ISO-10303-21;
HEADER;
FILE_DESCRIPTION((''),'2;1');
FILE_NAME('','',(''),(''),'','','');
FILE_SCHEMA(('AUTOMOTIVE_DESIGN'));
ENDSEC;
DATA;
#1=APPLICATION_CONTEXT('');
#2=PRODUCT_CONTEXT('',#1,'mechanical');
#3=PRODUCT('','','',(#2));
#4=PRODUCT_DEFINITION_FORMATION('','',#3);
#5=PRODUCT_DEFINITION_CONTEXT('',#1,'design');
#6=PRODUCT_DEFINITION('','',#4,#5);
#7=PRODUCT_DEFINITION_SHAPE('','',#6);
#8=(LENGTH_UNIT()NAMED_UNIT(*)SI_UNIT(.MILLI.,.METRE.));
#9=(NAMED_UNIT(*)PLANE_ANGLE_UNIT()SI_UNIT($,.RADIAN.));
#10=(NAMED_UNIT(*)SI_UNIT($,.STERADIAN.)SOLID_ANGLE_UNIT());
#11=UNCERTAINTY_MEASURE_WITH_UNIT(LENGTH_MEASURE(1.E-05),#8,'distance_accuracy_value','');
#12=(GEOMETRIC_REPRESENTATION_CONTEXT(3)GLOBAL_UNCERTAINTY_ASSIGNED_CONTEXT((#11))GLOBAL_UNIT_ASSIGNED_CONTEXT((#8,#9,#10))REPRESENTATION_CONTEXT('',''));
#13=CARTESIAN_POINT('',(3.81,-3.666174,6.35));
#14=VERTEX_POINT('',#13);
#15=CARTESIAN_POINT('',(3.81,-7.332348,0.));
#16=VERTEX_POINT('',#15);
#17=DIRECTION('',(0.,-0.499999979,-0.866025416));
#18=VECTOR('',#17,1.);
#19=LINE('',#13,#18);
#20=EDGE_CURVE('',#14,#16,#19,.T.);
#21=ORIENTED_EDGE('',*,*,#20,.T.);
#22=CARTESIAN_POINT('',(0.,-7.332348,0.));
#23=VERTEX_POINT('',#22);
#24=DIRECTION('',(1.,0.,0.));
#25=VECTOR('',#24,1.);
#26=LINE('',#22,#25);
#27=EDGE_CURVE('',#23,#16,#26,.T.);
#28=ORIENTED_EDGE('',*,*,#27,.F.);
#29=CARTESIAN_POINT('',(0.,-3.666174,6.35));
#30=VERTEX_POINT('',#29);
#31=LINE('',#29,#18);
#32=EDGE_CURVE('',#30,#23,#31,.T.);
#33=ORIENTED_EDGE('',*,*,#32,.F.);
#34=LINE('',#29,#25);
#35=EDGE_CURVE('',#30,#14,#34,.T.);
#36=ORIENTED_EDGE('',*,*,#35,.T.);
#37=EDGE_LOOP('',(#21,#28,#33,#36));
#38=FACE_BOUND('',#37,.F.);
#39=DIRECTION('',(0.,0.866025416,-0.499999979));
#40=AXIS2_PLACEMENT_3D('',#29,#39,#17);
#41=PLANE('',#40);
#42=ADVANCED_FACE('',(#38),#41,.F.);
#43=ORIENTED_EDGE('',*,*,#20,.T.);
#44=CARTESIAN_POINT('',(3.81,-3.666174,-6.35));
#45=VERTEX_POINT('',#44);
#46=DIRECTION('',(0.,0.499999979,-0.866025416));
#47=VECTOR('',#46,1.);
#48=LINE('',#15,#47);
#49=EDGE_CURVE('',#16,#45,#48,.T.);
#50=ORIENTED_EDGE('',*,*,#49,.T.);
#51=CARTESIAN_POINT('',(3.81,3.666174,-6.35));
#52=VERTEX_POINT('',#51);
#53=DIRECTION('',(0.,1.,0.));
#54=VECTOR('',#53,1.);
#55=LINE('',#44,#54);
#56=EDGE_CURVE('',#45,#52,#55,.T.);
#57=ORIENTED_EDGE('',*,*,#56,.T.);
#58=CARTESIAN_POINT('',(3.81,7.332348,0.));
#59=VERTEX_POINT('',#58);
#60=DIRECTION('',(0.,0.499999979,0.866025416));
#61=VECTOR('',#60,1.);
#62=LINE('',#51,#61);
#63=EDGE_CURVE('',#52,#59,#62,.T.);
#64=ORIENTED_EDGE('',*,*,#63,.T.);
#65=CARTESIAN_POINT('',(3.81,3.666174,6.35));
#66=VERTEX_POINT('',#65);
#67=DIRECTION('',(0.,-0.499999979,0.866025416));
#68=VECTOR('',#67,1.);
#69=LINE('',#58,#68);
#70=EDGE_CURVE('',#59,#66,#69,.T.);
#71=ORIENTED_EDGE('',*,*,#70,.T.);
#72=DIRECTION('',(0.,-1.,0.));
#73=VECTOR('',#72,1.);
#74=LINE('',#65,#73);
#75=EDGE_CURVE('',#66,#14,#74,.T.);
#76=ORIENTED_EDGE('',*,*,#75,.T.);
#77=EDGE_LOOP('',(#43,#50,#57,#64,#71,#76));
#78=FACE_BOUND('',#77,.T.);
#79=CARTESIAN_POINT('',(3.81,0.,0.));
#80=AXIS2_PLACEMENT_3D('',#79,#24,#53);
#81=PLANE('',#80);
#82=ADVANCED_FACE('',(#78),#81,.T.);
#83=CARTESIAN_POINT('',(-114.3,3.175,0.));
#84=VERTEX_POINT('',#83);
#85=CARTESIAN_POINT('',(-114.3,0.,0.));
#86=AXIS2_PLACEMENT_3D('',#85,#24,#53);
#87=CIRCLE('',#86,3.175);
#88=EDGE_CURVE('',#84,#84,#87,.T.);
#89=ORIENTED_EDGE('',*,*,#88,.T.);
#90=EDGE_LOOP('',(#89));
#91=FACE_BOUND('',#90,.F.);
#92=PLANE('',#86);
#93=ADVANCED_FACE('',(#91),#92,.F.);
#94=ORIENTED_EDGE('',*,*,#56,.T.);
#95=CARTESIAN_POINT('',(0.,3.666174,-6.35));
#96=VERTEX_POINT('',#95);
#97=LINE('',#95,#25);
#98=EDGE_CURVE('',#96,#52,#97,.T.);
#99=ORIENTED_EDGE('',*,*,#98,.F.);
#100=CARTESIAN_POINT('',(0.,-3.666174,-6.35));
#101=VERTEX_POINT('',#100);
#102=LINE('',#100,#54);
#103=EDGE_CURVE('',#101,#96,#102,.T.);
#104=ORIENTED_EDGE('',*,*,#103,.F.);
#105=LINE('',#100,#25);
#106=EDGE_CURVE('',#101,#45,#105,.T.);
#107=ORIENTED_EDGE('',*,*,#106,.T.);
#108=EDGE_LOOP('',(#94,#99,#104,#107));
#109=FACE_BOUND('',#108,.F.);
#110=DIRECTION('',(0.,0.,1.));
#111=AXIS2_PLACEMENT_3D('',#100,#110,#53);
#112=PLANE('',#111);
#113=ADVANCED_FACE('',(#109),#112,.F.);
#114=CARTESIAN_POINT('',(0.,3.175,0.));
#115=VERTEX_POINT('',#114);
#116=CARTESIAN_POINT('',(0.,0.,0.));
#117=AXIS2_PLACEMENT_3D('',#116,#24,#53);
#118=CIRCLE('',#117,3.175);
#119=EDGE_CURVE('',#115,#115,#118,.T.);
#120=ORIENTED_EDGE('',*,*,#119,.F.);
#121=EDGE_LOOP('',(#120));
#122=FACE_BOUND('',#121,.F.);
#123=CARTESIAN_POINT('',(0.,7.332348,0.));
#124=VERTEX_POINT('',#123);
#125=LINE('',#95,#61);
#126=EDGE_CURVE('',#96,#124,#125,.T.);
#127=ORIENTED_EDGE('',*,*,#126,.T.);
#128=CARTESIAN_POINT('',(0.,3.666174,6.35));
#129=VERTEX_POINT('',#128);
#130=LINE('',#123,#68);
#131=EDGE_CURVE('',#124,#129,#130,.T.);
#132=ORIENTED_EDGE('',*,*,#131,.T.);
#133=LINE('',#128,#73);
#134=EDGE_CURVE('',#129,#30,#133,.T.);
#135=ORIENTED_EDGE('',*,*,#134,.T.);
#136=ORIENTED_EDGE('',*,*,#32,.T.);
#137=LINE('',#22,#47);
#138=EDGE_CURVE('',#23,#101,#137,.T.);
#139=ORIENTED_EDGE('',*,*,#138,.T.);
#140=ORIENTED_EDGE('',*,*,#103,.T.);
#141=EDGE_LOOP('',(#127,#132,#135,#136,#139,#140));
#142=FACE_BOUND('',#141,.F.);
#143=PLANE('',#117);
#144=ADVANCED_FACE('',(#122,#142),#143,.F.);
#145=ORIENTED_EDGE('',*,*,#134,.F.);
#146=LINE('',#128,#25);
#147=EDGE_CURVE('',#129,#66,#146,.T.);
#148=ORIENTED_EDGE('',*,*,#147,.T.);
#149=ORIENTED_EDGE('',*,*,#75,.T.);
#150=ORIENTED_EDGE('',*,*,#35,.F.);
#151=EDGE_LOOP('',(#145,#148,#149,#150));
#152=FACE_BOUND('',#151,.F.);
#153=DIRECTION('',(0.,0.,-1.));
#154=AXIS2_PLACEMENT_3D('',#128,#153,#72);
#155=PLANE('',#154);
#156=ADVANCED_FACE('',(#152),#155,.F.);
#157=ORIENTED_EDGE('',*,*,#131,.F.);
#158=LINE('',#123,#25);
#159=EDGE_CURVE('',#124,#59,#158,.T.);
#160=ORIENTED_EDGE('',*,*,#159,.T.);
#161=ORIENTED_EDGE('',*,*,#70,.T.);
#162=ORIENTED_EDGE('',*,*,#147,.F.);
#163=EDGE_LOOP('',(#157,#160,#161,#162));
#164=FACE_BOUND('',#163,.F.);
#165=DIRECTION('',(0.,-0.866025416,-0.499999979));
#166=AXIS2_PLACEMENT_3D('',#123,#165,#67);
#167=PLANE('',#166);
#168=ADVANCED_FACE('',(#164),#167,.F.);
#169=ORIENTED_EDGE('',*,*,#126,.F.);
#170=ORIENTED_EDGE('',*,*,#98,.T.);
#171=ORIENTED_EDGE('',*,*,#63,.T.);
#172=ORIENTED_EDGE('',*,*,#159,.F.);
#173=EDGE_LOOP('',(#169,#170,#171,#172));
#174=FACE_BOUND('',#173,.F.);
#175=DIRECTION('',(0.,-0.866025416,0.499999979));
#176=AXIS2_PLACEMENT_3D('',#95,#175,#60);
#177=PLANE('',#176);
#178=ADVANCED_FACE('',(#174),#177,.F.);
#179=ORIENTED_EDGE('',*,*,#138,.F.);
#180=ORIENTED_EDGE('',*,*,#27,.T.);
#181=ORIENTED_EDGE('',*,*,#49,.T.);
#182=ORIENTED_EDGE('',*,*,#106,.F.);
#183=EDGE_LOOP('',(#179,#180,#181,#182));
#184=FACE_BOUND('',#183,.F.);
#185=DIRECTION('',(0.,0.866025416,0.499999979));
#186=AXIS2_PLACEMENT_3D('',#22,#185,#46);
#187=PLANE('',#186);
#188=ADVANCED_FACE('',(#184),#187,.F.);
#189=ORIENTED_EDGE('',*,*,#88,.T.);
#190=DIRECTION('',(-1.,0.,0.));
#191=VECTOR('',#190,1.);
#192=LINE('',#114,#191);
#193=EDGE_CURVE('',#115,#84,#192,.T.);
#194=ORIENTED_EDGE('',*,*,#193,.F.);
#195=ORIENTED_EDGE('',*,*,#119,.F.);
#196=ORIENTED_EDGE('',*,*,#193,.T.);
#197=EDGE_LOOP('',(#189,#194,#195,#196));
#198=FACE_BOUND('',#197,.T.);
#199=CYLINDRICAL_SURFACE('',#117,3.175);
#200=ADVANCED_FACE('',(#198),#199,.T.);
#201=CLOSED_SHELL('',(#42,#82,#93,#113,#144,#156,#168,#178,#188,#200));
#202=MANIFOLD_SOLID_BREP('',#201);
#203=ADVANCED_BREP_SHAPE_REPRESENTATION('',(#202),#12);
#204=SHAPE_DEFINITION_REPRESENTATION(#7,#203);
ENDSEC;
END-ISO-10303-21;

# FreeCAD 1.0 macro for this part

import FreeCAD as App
import Part
import Sketcher

V = App.Vector
Q = App.Units.Quantity

doc = App.newDocument("Part")
body = doc.addObject("PartDesign::Body", "Body")

sketch1 = doc.addObject("Sketcher::SketchObject", "Sketch")
body.addObject(sketch1)
sketch1.AttachmentSupport = (doc.YZ_Plane, [""])
sketch1.MapMode = "FlatFace"
sketch1.addGeometry([
    Part.LineSegment(V(-4, -6, 0), V(4, -6, 0)),
    Part.LineSegment(V(4, -6, 0), V(7, 0, 0)),
    Part.LineSegment(V(7, 0, 0), V(4, 6, 0)),
    Part.LineSegment(V(4, 6, 0), V(-4, 6, 0)),
    Part.LineSegment(V(-4, 6, 0), V(-7, 0, 0)),
    Part.LineSegment(V(-7, 0, 0), V(-4, -6, 0)),
], False)
sketch1.addConstraint([
    Sketcher.Constraint("Coincident", 0, 2, 1, 1),
    Sketcher.Constraint("Coincident", 1, 2, 2, 1),
    Sketcher.Constraint("Coincident", 2, 2, 3, 1),
    Sketcher.Constraint("Coincident", 3, 2, 4, 1),
    Sketcher.Constraint("Coincident", 4, 2, 5, 1),
    Sketcher.Constraint("Coincident", 5, 2, 0, 1),
    Sketcher.Constraint("Horizontal", 0),
    Sketcher.Constraint("Horizontal", 3),
    Sketcher.Constraint("Symmetric", 0, 2, 3, 2, -1, 1),
    Sketcher.Constraint("Symmetric", 1, 2, 4, 2, -1, 1),
    Sketcher.Constraint("PointOnObject", 1, 2, -1),
    Sketcher.Constraint("Parallel", 2, 5),
    Sketcher.Constraint("Vertical", 0, 2, 2, 2),
    Sketcher.Constraint("Angle", 1, Q("60.000001 deg")),
    Sketcher.Constraint("DistanceY", 0, 2, 2, 2, Q("0.5 in")),
    Sketcher.Constraint("DistanceX", 0, 1, 0, 2, Q("7.332348 mm")),
])
pad1 = doc.addObject("PartDesign::Pad", "Pad")
body.addObject(pad1)
pad1.Profile = sketch1
pad1.Length = Q("0.15 in")

sketch2 = doc.addObject("Sketcher::SketchObject", "Sketch001")
body.addObject(sketch2)
sketch2.AttachmentSupport = (doc.YZ_Plane, [""])
sketch2.MapMode = "FlatFace"
sketch2.addGeometry(Part.Circle(V(0, 0, 0), V(0, 0, 1), 3.2), False)
sketch2.addConstraint([
    Sketcher.Constraint("Coincident", 0, 3, -1, 1),
    Sketcher.Constraint("Diameter", 0, Q("0.25 in")),
])
pad2 = doc.addObject("PartDesign::Pad", "Pad001")
body.addObject(pad2)
pad2.Profile = sketch2
pad2.Length = Q("4.5 in")
pad2.Reversed = True

doc.recompute()
